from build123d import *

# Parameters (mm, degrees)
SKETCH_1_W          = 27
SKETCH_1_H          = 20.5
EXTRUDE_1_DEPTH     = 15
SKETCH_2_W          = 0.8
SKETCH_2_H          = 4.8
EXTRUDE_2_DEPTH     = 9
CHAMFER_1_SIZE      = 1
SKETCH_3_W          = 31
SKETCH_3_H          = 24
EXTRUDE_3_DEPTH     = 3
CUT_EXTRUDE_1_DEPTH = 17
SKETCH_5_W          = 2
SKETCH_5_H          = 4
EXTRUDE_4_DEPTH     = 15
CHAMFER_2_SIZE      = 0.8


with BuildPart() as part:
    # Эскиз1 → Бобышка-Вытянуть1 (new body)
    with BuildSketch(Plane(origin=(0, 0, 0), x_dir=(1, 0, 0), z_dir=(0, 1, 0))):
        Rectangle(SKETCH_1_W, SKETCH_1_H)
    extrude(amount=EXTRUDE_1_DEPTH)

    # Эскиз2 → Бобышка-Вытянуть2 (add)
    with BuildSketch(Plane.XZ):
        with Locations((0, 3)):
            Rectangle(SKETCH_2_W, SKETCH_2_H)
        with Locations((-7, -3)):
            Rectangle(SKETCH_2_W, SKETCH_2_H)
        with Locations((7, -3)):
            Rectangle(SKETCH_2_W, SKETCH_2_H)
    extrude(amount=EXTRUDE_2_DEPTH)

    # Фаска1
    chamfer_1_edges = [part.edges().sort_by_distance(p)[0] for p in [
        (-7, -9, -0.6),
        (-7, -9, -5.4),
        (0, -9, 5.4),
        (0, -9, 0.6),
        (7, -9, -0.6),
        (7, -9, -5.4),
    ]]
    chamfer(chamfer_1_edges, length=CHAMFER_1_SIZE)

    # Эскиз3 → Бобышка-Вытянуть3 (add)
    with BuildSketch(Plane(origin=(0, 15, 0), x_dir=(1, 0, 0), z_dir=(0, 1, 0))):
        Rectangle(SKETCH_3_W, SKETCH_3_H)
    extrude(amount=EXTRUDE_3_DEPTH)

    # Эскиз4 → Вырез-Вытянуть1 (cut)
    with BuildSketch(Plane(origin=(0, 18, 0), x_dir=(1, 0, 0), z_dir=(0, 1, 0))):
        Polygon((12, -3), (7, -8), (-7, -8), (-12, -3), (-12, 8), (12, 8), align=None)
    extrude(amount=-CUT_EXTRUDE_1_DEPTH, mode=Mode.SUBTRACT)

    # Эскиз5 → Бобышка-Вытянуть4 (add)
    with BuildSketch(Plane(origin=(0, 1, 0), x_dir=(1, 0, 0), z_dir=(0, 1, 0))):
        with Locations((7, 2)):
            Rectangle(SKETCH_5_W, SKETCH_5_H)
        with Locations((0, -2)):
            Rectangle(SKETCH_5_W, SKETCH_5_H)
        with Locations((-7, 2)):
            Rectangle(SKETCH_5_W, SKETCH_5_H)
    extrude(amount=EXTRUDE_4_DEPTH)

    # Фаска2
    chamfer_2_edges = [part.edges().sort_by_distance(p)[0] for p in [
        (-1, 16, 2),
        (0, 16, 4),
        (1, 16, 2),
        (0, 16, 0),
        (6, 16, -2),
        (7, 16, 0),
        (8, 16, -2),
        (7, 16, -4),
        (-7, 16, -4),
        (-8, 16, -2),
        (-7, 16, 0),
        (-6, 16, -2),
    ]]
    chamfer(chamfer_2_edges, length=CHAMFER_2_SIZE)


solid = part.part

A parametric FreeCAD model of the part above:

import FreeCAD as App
import Part
import Sketcher
from FreeCAD import Vector
Q = App.Units.Quantity


def edges_at(feature, points):
    """Names of the edges that pass closest to the given points."""
    edges = feature.Shape.Edges
    near = lambda p: min(range(len(edges)), key=lambda i: edges[i].distToShape(Part.Vertex(*p))[0])
    return sorted({f"Edge{near(p) + 1}" for p in points})


def add_polygon(sketch, points):
    """Adds a closed chain of lines whose ends are joined by coincident constraints."""
    first, n = sketch.GeometryCount, len(points)
    for a, b in zip(points, points[1:] + points[:1]):
        sketch.addGeometry(Part.LineSegment(App.Vector(*a, 0), App.Vector(*b, 0)), False)
    for i in range(n):
        sketch.addConstraint(Sketcher.Constraint("Coincident", first + i, 2, first + (i + 1) % n, 1))

doc = App.newDocument("Part")
body = doc.addObject("PartDesign::Body", "Body")

# Sketch on XZ plane
sketch1 = body.newObject("Sketcher::SketchObject", "Sketch")
sketch1.AttachmentSupport = (doc.getObject("XZ_Plane"), [""])
sketch1.MapMode = "FlatFace"
add_polygon(sketch1, [(-14, -10), (-14, 10), (14, 10), (14, -10)])  # lines 0-3
sketch1.addConstraint([
    Sketcher.Constraint("Vertical", 0),
    Sketcher.Constraint("Horizontal", 1),
    Sketcher.Constraint("Vertical", 2),
    Sketcher.Constraint("Horizontal", 3),
    Sketcher.Constraint("Symmetric", 0, 2, 2, 2, -1, 1),
    Sketcher.Constraint("DistanceX", 1, 1, 1, 2, Q("27 mm")),
    Sketcher.Constraint("DistanceY", 0, 1, 0, 2, Q("20.5 mm")),
])
pad1 = body.newObject("PartDesign::Pad", "Pad")
pad1.Profile = sketch1
pad1.Length = 15
pad1.Reversed = True

# Sketch on XZ plane
sketch2 = body.newObject("Sketcher::SketchObject", "Sketch001")
sketch2.AttachmentSupport = (doc.getObject("XZ_Plane"), [""])
sketch2.MapMode = "FlatFace"
add_polygon(sketch2, [(-0.4, 5.4), (-0.4, 0.6), (0.4, 0.6), (0.4, 5.4)])  # lines 0-3
add_polygon(sketch2, [(-7.4, -0.6), (-7.4, -5.4), (-6.6, -5.4), (-6.6, -0.6)])  # lines 4-7
add_polygon(sketch2, [(6.6, -0.6), (6.6, -5.4), (7.4, -5.4), (7.4, -0.6)])  # lines 8-11
sketch2.addConstraint([
    Sketcher.Constraint("Vertical", 0),
    Sketcher.Constraint("Horizontal", 1),
    Sketcher.Constraint("Vertical", 2),
    Sketcher.Constraint("Horizontal", 3),
    Sketcher.Constraint("Vertical", 4),
    Sketcher.Constraint("Horizontal", 5),
    Sketcher.Constraint("Vertical", 6),
    Sketcher.Constraint("Horizontal", 7),
    Sketcher.Constraint("Vertical", 8),
    Sketcher.Constraint("Horizontal", 9),
    Sketcher.Constraint("Vertical", 10),
    Sketcher.Constraint("Horizontal", 11),
    Sketcher.Constraint("Symmetric", 5, 2, 8, 2, -2),
    Sketcher.Constraint("Symmetric", 7, 2, 10, 2, -2),
    Sketcher.Constraint("Equal", 3, 5),
    Sketcher.Constraint("Equal", 2, 4),
    Sketcher.Constraint("DistanceX", 1, 1, 1, 2, Q("0.8 mm")),
    Sketcher.Constraint("DistanceY", 0, 2, 0, 1, Q("4.8 mm")),
    Sketcher.Constraint("DistanceX", 4, 2, 0, 2, Q("7 mm")),
    Sketcher.Constraint("DistanceY", 4, 2, 0, 2, Q("6 mm")),
    Sketcher.Constraint("DistanceX", 0, 2, 8, 2, Q("7 mm")),
    Sketcher.Constraint("DistanceY", -1, 1, 0, 2, Q("0.6 mm")),
])
pad2 = body.newObject("PartDesign::Pad", "Pad001")
pad2.Profile = sketch2
pad2.Length = 9
doc.recompute()

chamfer = body.newObject("PartDesign::Chamfer", "Chamfer")
chamfer.Base = (pad2, edges_at(pad2, [
    (-7, -9, -0.6),
    (-7, -9, -5.4),
    (0, -9, 5.4),
    (0, -9, 0.6),
    (7, -9, -0.6),
    (7, -9, -5.4),
]))
chamfer.Size = 1

# Sketch on XZ plane
sketch3 = body.newObject("Sketcher::SketchObject", "Sketch002")
sketch3.AttachmentSupport = (doc.getObject("XZ_Plane"), [""])
sketch3.MapMode = "FlatFace"
sketch3.AttachmentOffset = App.Placement(Vector(0, 0, -15), App.Rotation())
add_polygon(sketch3, [(-16, -12), (-16, 12), (16, 12), (16, -12)])  # lines 0-3
sketch3.addConstraint([
    Sketcher.Constraint("Vertical", 0),
    Sketcher.Constraint("Horizontal", 1),
    Sketcher.Constraint("Vertical", 2),
    Sketcher.Constraint("Horizontal", 3),
    Sketcher.Constraint("Symmetric", 0, 2, 2, 2, -1, 1),
    Sketcher.Constraint("DistanceX", 1, 1, 1, 2, Q("31 mm")),
    Sketcher.Constraint("DistanceY", 0, 1, 0, 2, Q("24 mm")),
])
pad3 = body.newObject("PartDesign::Pad", "Pad002")
pad3.Profile = sketch3
pad3.Length = 3
pad3.Reversed = True

# Sketch on XZ plane
sketch4 = body.newObject("Sketcher::SketchObject", "Sketch003")
sketch4.AttachmentSupport = (doc.getObject("XZ_Plane"), [""])
sketch4.MapMode = "FlatFace"
sketch4.AttachmentOffset = App.Placement(Vector(0, 0, -18), App.Rotation())
add_polygon(sketch4, [(7, 8), (12, 3), (12, -8), (-12, -8), (-12, 3), (-7, 8)])  # lines 0-5
sketch4.addConstraint([
    Sketcher.Constraint("Vertical", 1),
    Sketcher.Constraint("Horizontal", 2),
    Sketcher.Constraint("Vertical", 3),
    Sketcher.Constraint("Horizontal", 5),
    Sketcher.Constraint("Symmetric", 0, 2, 3, 2, -2),
    Sketcher.Constraint("Perpendicular", 0, 4),
    Sketcher.Constraint("Equal", 0, 4),
    Sketcher.Constraint("DistanceX", 2, 2, 2, 1, Q("24 mm")),
    Sketcher.Constraint("DistanceX", 5, 1, 5, 2, Q("14 mm")),
    Sketcher.Constraint("DistanceY", 1, 2, 1, 1, Q("11 mm")),
    Sketcher.Constraint("DistanceY", -1, 1, 0, 2, Q("3 mm")),
])
pocket1 = body.newObject("PartDesign::Pocket", "Pocket")
pocket1.Profile = sketch4
pocket1.Length = 17
pocket1.Reversed = True

# Sketch on XZ plane
sketch5 = body.newObject("Sketcher::SketchObject", "Sketch004")
sketch5.AttachmentSupport = (doc.getObject("XZ_Plane"), [""])
sketch5.MapMode = "FlatFace"
sketch5.AttachmentOffset = App.Placement(Vector(0, 0, -1), App.Rotation())
add_polygon(sketch5, [(6, -4), (6, 0), (8, 0), (8, -4)])  # lines 0-3
add_polygon(sketch5, [(-1, 0), (-1, 4), (1, 4), (1, 0)])  # lines 4-7
add_polygon(sketch5, [(-8, -4), (-8, 0), (-6, 0), (-6, -4)])  # lines 8-11
sketch5.addConstraint([
    Sketcher.Constraint("Vertical", 0),
    Sketcher.Constraint("Horizontal", 1),
    Sketcher.Constraint("Vertical", 2),
    Sketcher.Constraint("Horizontal", 3),
    Sketcher.Constraint("Vertical", 4),
    Sketcher.Constraint("Horizontal", 5),
    Sketcher.Constraint("Vertical", 6),
    Sketcher.Constraint("Horizontal", 7),
    Sketcher.Constraint("Vertical", 8),
    Sketcher.Constraint("Horizontal", 9),
    Sketcher.Constraint("Vertical", 10),
    Sketcher.Constraint("Horizontal", 11),
    Sketcher.Constraint("Symmetric", 6, 2, 7, 2, -1, 1),
    Sketcher.Constraint("Symmetric", 1, 2, 8, 2, -1, 1),
    Sketcher.Constraint("Symmetric", 0, 2, 9, 2, -2),
    Sketcher.Constraint("Horizontal", 3, 2, 10, 2),
    Sketcher.Constraint("Equal", 3, 5),
    Sketcher.Constraint("Equal", 2, 4),
    Sketcher.Constraint("DistanceX", 1, 1, 1, 2, Q("2 mm")),
    Sketcher.Constraint("DistanceY", 0, 1, 0, 2, Q("4 mm")),
    Sketcher.Constraint("DistanceX", -1, 1, 0, 2, Q("6 mm")),
])
pad4 = body.newObject("PartDesign::Pad", "Pad003")
pad4.Profile = sketch5
pad4.Length = 15
pad4.Reversed = True
doc.recompute()

chamfer2 = body.newObject("PartDesign::Chamfer", "Chamfer001")
chamfer2.Base = (pad4, edges_at(pad4, [
    (-1, 16, 2),
    (0, 16, 4),
    (1, 16, 2),
    (0, 16, 0),
    (6, 16, -2),
    (7, 16, 0),
    (8, 16, -2),
    (7, 16, -4),
    (-7, 16, -4),
    (-8, 16, -2),
    (-7, 16, 0),
    (-6, 16, -2),
]))
chamfer2.Size = 0.8

doc.recompute()
